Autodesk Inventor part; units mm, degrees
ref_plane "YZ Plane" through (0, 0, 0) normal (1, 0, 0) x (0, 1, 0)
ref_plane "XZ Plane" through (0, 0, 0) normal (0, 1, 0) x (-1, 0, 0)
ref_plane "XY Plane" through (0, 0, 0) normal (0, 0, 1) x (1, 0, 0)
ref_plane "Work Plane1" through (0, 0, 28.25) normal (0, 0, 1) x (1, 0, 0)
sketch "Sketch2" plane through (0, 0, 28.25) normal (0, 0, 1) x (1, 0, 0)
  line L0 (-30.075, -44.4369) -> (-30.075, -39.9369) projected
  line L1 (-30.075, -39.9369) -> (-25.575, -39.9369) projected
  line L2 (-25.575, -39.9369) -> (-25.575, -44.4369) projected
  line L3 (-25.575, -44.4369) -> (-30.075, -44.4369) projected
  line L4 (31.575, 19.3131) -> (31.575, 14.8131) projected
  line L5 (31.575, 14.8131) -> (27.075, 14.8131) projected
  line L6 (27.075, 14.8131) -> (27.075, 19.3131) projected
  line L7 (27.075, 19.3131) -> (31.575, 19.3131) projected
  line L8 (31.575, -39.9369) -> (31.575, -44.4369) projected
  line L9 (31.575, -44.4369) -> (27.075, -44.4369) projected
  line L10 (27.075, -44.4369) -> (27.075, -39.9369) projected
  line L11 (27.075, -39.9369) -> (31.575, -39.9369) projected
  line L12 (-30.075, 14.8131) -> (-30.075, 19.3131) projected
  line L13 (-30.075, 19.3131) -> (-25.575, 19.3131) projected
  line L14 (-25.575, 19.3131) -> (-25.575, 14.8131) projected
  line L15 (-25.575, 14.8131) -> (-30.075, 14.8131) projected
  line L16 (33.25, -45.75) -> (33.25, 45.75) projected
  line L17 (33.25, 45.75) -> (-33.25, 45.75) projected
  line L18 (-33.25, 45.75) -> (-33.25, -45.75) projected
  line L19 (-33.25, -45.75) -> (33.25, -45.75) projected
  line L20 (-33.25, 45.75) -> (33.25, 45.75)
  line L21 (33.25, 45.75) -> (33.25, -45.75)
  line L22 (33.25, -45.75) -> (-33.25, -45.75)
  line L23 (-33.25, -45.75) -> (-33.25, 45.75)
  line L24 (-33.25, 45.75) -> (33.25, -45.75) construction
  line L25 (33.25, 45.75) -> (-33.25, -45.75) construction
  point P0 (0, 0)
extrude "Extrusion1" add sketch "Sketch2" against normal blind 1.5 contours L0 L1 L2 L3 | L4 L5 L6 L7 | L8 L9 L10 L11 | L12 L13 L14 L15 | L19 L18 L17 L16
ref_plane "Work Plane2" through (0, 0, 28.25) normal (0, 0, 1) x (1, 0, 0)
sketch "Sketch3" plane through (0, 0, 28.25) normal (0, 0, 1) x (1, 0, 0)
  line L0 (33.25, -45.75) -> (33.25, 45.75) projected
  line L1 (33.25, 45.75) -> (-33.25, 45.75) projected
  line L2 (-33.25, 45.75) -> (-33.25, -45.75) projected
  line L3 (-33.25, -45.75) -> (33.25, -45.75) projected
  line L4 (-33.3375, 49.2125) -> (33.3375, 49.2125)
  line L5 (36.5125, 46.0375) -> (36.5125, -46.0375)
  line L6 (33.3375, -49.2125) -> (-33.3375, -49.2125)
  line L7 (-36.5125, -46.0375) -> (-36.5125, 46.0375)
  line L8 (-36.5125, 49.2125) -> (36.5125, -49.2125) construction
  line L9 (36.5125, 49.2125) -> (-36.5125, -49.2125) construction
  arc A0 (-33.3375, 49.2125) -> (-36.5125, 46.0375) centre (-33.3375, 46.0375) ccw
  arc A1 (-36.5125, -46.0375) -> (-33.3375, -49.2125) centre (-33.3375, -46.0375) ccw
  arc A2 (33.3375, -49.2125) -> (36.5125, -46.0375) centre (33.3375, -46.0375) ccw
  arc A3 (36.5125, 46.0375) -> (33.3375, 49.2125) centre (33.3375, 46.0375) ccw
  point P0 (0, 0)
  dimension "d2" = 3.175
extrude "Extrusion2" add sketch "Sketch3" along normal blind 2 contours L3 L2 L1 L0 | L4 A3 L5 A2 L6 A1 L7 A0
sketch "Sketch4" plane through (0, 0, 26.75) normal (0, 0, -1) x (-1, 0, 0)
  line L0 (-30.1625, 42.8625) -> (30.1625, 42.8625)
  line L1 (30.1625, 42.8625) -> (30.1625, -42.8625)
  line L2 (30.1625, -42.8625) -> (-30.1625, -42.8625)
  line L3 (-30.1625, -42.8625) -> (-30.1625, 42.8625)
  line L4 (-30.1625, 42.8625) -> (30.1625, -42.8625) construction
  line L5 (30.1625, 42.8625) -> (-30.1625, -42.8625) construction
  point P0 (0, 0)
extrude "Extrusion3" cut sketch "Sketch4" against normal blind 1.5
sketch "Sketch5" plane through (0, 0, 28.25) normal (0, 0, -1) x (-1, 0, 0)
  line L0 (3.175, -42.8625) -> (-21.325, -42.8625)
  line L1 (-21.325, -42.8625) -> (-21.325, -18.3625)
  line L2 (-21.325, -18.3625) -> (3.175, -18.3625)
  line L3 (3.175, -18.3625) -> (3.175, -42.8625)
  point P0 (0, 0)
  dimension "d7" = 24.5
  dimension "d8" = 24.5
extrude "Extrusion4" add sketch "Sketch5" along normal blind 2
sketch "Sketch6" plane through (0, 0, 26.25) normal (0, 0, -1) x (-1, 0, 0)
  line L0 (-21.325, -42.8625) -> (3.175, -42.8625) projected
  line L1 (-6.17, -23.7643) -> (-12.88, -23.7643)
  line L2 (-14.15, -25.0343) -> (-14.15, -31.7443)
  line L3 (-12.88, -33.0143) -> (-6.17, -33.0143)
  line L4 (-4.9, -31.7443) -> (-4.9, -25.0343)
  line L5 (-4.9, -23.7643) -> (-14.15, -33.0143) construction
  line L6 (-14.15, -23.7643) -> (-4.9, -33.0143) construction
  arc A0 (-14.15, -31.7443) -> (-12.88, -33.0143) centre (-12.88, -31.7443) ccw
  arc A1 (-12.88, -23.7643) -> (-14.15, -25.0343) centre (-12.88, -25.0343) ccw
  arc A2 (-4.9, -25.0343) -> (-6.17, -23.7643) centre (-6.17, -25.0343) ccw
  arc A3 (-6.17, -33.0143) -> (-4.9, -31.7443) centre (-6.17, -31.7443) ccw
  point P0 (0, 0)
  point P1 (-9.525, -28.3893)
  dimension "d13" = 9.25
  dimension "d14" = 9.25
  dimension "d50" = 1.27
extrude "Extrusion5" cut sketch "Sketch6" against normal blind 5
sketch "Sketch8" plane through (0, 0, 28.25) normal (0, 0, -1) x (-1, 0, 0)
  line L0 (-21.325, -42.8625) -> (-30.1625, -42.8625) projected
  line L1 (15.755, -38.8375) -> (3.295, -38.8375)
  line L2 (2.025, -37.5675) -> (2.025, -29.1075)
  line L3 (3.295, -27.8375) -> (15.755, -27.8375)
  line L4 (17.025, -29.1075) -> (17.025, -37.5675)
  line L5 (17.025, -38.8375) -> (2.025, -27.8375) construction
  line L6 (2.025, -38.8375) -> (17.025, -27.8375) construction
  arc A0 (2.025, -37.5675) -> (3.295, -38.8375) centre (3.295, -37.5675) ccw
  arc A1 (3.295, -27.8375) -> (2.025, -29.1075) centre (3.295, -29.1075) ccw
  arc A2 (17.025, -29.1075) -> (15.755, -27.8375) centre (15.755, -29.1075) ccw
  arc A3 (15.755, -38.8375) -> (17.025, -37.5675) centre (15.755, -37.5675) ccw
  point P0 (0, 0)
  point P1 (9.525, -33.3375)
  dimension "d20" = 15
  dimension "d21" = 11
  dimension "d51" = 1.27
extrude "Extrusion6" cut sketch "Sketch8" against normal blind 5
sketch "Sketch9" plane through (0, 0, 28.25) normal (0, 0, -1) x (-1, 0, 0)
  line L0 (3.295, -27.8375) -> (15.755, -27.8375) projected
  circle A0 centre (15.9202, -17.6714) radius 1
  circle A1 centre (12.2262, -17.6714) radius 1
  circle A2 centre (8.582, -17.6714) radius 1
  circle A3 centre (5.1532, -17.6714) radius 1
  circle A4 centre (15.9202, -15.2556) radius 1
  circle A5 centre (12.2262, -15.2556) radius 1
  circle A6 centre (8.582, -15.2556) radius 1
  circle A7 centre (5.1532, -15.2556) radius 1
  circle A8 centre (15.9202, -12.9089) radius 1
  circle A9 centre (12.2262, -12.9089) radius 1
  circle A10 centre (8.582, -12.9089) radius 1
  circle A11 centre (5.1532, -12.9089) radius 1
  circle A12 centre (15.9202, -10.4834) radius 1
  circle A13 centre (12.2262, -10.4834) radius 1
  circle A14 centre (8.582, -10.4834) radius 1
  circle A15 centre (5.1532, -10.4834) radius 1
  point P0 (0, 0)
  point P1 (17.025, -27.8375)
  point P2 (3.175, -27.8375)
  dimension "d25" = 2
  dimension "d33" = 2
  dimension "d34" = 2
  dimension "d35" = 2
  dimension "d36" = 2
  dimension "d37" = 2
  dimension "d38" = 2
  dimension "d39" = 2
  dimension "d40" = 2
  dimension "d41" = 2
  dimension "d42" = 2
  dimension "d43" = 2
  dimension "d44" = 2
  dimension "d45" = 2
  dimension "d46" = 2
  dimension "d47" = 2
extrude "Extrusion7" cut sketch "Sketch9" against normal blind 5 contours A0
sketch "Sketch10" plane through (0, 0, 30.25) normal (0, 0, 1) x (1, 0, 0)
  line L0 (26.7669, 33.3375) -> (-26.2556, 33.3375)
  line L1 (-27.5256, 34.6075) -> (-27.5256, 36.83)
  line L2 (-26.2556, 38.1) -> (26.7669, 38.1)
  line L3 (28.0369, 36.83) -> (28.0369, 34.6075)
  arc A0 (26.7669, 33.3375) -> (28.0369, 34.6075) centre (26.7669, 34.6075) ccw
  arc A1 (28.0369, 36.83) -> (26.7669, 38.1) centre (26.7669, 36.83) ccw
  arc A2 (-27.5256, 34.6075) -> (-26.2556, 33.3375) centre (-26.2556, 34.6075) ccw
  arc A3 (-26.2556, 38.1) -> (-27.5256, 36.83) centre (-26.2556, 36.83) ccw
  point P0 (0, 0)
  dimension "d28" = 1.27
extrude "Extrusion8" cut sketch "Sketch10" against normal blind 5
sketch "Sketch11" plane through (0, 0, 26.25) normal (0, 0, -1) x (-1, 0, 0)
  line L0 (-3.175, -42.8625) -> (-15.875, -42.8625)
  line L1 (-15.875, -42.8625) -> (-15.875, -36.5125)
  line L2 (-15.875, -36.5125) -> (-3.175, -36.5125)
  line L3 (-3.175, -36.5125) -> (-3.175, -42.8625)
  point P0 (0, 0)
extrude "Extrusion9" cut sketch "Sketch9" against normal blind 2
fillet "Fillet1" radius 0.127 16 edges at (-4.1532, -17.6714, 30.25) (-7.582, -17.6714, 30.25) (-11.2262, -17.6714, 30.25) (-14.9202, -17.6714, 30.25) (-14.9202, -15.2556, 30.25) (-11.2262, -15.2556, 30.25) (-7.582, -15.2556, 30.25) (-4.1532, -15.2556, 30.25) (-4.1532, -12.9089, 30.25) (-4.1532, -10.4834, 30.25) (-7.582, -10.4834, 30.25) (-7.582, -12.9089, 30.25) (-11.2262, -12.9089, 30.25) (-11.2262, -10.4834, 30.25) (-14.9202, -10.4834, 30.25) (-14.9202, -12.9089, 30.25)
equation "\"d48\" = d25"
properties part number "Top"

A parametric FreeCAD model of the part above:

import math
import FreeCAD as App
import Part
import Sketcher
from FreeCAD import Vector
Q = App.Units.Quantity


def edges_at(feature, points):
    """Names of the edges that pass closest to the given points."""
    edges = feature.Shape.Edges
    near = lambda p: min(range(len(edges)), key=lambda i: edges[i].distToShape(Part.Vertex(*p))[0])
    return sorted({f"Edge{near(p) + 1}" for p in points})

doc = App.newDocument("Part")
body = doc.addObject("PartDesign::Body", "Body")

sketch1 = doc.addObject("Sketcher::SketchObject", "Sketch")
body.addObject(sketch1)
sketch1.AttachmentSupport = (doc.XY_Plane, [""])
sketch1.MapMode = "FlatFace"
sketch1.AttachmentOffset = App.Placement(Vector(0, 0, 1.1122047 * 25.4), App.Rotation())
sketch1.addGeometry(Part.LineSegment(Vector(-33, -46, 0), Vector(33, -46, 0)), False)
sketch1.addGeometry(Part.LineSegment(Vector(33, -46, 0), Vector(33, 46, 0)), False)
sketch1.addGeometry(Part.LineSegment(Vector(33, 46, 0), Vector(-33, 46, 0)), False)
sketch1.addGeometry(Part.LineSegment(Vector(-33, 46, 0), Vector(-33, -46, 0)), False)
sketch1.addConstraint(Sketcher.Constraint("Coincident", 0, 2, 1, 1))
sketch1.addConstraint(Sketcher.Constraint("Coincident", 1, 2, 2, 1))
sketch1.addConstraint(Sketcher.Constraint("Coincident", 2, 2, 3, 1))
sketch1.addConstraint(Sketcher.Constraint("Coincident", 3, 2, 0, 1))
sketch1.addConstraint(Sketcher.Constraint("Horizontal", 0))
sketch1.addConstraint(Sketcher.Constraint("Vertical", 1))
sketch1.addConstraint(Sketcher.Constraint("Horizontal", 2))
sketch1.addConstraint(Sketcher.Constraint("Vertical", 3))
sketch1.addConstraint(Sketcher.Constraint("Symmetric", 0, 2, 2, 2, -1, 1))
sketch1.addConstraint(Sketcher.Constraint("DistanceX", 0, 1, 0, 2, Q("2.6181 in")))
sketch1.addConstraint(Sketcher.Constraint("DistanceY", 1, 1, 1, 2, 91.5))
pad1 = doc.addObject("PartDesign::Pad", "Pad")
body.addObject(pad1)
pad1.Profile = sketch1
pad1.Length = 1.5
pad1.Reversed = True

sketch2 = doc.addObject("Sketcher::SketchObject", "Sketch001")
body.addObject(sketch2)
sketch2.AttachmentSupport = (doc.XY_Plane, [""])
sketch2.MapMode = "FlatFace"
sketch2.AttachmentOffset = App.Placement(Vector(0, 0, 1.1122047 * 25.4), App.Rotation())
sketch2.addGeometry(Part.LineSegment(Vector(33.3, 49.2, 0), Vector(-33.3, 49.2, 0)), False)
sketch2.addGeometry(Part.ArcOfCircle(Part.Circle(Vector(-33.3, 46, 0), Vector(0, 0, 1), 3.2), math.radians(90), math.radians(180)), False)
sketch2.addGeometry(Part.LineSegment(Vector(-36.5, 46, 0), Vector(-36.5, -46, 0)), False)
sketch2.addGeometry(Part.ArcOfCircle(Part.Circle(Vector(-33.3, -46, 0), Vector(0, 0, 1), 3.2), math.radians(180), math.radians(270)), False)
sketch2.addGeometry(Part.LineSegment(Vector(-33.3, -49.2, 0), Vector(33.3, -49.2, 0)), False)
sketch2.addGeometry(Part.ArcOfCircle(Part.Circle(Vector(33.3, -46, 0), Vector(0, 0, 1), 3.2), math.radians(-90), math.radians(0)), False)
sketch2.addGeometry(Part.LineSegment(Vector(36.5, -46, 0), Vector(36.5, 46, 0)), False)
sketch2.addGeometry(Part.ArcOfCircle(Part.Circle(Vector(33.3, 46, 0), Vector(0, 0, 1), 3.2), math.radians(0), math.radians(90)), False)
sketch2.addConstraint(Sketcher.Constraint("Tangent", 0, 2, 1, 1))
sketch2.addConstraint(Sketcher.Constraint("Tangent", 1, 2, 2, 1))
sketch2.addConstraint(Sketcher.Constraint("Tangent", 2, 2, 3, 1))
sketch2.addConstraint(Sketcher.Constraint("Tangent", 3, 2, 4, 1))
sketch2.addConstraint(Sketcher.Constraint("Tangent", 4, 2, 5, 1))
sketch2.addConstraint(Sketcher.Constraint("Tangent", 5, 2, 6, 1))
sketch2.addConstraint(Sketcher.Constraint("Tangent", 6, 2, 7, 1))
sketch2.addConstraint(Sketcher.Constraint("Tangent", 7, 2, 0, 1))
sketch2.addConstraint(Sketcher.Constraint("Horizontal", 0))
sketch2.addConstraint(Sketcher.Constraint("Vertical", 2))
sketch2.addConstraint(Sketcher.Constraint("Horizontal", 4))
sketch2.addConstraint(Sketcher.Constraint("Vertical", 6))
sketch2.addConstraint(Sketcher.Constraint("Equal", 1, 3))
sketch2.addConstraint(Sketcher.Constraint("Equal", 3, 5))
sketch2.addConstraint(Sketcher.Constraint("Equal", 5, 7))
sketch2.addConstraint(Sketcher.Constraint("Symmetric", 1, 3, 5, 3, -1, 1))
sketch2.addConstraint(Sketcher.Constraint("Radius", 1, Q("0.125 in")))
sketch2.addConstraint(Sketcher.Constraint("DistanceX", 0, 2, 0, 1, Q("2.625 in")))
sketch2.addConstraint(Sketcher.Constraint("DistanceY", 2, 2, 2, 1, Q("3.625 in")))
pad2 = doc.addObject("PartDesign::Pad", "Pad001")
body.addObject(pad2)
pad2.Profile = sketch2
pad2.Length = 2

sketch3 = doc.addObject("Sketcher::SketchObject", "Sketch002")
body.addObject(sketch3)
sketch3.AttachmentSupport = (doc.XY_Plane, [""])
sketch3.MapMode = "FlatFace"
sketch3.AttachmentOffset = App.Placement(Vector(0, 0, 26.75), App.Rotation())
sketch3.addGeometry(Part.LineSegment(Vector(-30, 43, 0), Vector(30, 43, 0)), False)
sketch3.addGeometry(Part.LineSegment(Vector(30, 43, 0), Vector(30, -43, 0)), False)
sketch3.addGeometry(Part.LineSegment(Vector(30, -43, 0), Vector(-30, -43, 0)), False)
sketch3.addGeometry(Part.LineSegment(Vector(-30, -43, 0), Vector(-30, 43, 0)), False)
sketch3.addConstraint(Sketcher.Constraint("Coincident", 0, 2, 1, 1))
sketch3.addConstraint(Sketcher.Constraint("Coincident", 1, 2, 2, 1))
sketch3.addConstraint(Sketcher.Constraint("Coincident", 2, 2, 3, 1))
sketch3.addConstraint(Sketcher.Constraint("Coincident", 3, 2, 0, 1))
sketch3.addConstraint(Sketcher.Constraint("Horizontal", 0))
sketch3.addConstraint(Sketcher.Constraint("Vertical", 1))
sketch3.addConstraint(Sketcher.Constraint("Horizontal", 2))
sketch3.addConstraint(Sketcher.Constraint("Vertical", 3))
sketch3.addConstraint(Sketcher.Constraint("Symmetric", 0, 2, 2, 2, -1, 1))
sketch3.addConstraint(Sketcher.Constraint("DistanceX", 0, 1, 0, 2, Q("2.375 in")))
sketch3.addConstraint(Sketcher.Constraint("DistanceY", 1, 2, 1, 1, Q("3.375 in")))
pocket1 = doc.addObject("PartDesign::Pocket", "Pocket")
body.addObject(pocket1)
pocket1.Profile = sketch3
pocket1.Length = 1.5
pocket1.Reversed = True

sketch4 = doc.addObject("Sketcher::SketchObject", "Sketch003")
body.addObject(sketch4)
sketch4.AttachmentSupport = (doc.XY_Plane, [""])
sketch4.MapMode = "FlatFace"
sketch4.AttachmentOffset = App.Placement(Vector(0, 0, 1.1122047 * 25.4), App.Rotation())
sketch4.addGeometry(Part.LineSegment(Vector(21, -43, 0), Vector(-3, -43, 0)), False)
sketch4.addGeometry(Part.LineSegment(Vector(-3, -43, 0), Vector(-3, -18, 0)), False)
sketch4.addGeometry(Part.LineSegment(Vector(-3, -18, 0), Vector(21, -18, 0)), False)
sketch4.addGeometry(Part.LineSegment(Vector(21, -18, 0), Vector(21, -43, 0)), False)
sketch4.addConstraint(Sketcher.Constraint("Coincident", 0, 2, 1, 1))
sketch4.addConstraint(Sketcher.Constraint("Coincident", 1, 2, 2, 1))
sketch4.addConstraint(Sketcher.Constraint("Coincident", 2, 2, 3, 1))
sketch4.addConstraint(Sketcher.Constraint("Coincident", 3, 2, 0, 1))
sketch4.addConstraint(Sketcher.Constraint("Horizontal", 0))
sketch4.addConstraint(Sketcher.Constraint("Vertical", 1))
sketch4.addConstraint(Sketcher.Constraint("Horizontal", 2))
sketch4.addConstraint(Sketcher.Constraint("Vertical", 3))
sketch4.addConstraint(Sketcher.Constraint("Equal", 2, 1))
sketch4.addConstraint(Sketcher.Constraint("DistanceX", 0, 2, 0, 1, 24.5))
sketch4.addConstraint(Sketcher.Constraint("DistanceX", 0, 2, -1, 1, Q("0.125 in")))
sketch4.addConstraint(Sketcher.Constraint("DistanceY", 0, 2, -1, 1, Q("1.6875 in")))
pad3 = doc.addObject("PartDesign::Pad", "Pad002")
body.addObject(pad3)
pad3.Profile = sketch4
pad3.Length = 2
pad3.Reversed = True

sketch5 = doc.addObject("Sketcher::SketchObject", "Sketch004")
body.addObject(sketch5)
sketch5.AttachmentSupport = (doc.XY_Plane, [""])
sketch5.MapMode = "FlatFace"
sketch5.AttachmentOffset = App.Placement(Vector(0, 0, 26.25), App.Rotation())
sketch5.addGeometry(Part.ArcOfCircle(Part.Circle(Vector(6.2, -25, 0), Vector(0, 0, 1), 1.3), math.radians(90), math.radians(180)), False)
sketch5.addGeometry(Part.LineSegment(Vector(6.2, -23.8, 0), Vector(12.9, -23.8, 0)), False)
sketch5.addGeometry(Part.ArcOfCircle(Part.Circle(Vector(12.9, -25, 0), Vector(0, 0, 1), 1.3), math.radians(0), math.radians(90)), False)
sketch5.addGeometry(Part.LineSegment(Vector(14.2, -25, 0), Vector(14.2, -31.7, 0)), False)
sketch5.addGeometry(Part.ArcOfCircle(Part.Circle(Vector(12.9, -31.7, 0), Vector(0, 0, 1), 1.3), math.radians(-90), math.radians(0)), False)
sketch5.addGeometry(Part.LineSegment(Vector(12.9, -33, 0), Vector(6.2, -33, 0)), False)
sketch5.addGeometry(Part.ArcOfCircle(Part.Circle(Vector(6.2, -31.7, 0), Vector(0, 0, 1), 1.3), math.radians(180), math.radians(270)), False)
sketch5.addGeometry(Part.LineSegment(Vector(4.9, -31.7, 0), Vector(4.9, -25, 0)), False)
sketch5.addConstraint(Sketcher.Constraint("Tangent", 0, 1, 1, 1))
sketch5.addConstraint(Sketcher.Constraint("Tangent", 1, 2, 2, 2))
sketch5.addConstraint(Sketcher.Constraint("Tangent", 2, 1, 3, 1))
sketch5.addConstraint(Sketcher.Constraint("Tangent", 3, 2, 4, 2))
sketch5.addConstraint(Sketcher.Constraint("Tangent", 4, 1, 5, 1))
sketch5.addConstraint(Sketcher.Constraint("Tangent", 5, 2, 6, 2))
sketch5.addConstraint(Sketcher.Constraint("Tangent", 6, 1, 7, 1))
sketch5.addConstraint(Sketcher.Constraint("Tangent", 7, 2, 0, 2))
sketch5.addConstraint(Sketcher.Constraint("Horizontal", 1))
sketch5.addConstraint(Sketcher.Constraint("Vertical", 3))
sketch5.addConstraint(Sketcher.Constraint("Horizontal", 5))
sketch5.addConstraint(Sketcher.Constraint("Vertical", 7))
sketch5.addConstraint(Sketcher.Constraint("Equal", 0, 2))
sketch5.addConstraint(Sketcher.Constraint("Equal", 2, 4))
sketch5.addConstraint(Sketcher.Constraint("Equal", 4, 6))
sketch5.addConstraint(Sketcher.Constraint("Equal", 5, 3))
sketch5.addConstraint(Sketcher.Constraint("Radius", 0, Q("0.05 in")))
sketch5.addConstraint(Sketcher.Constraint("DistanceX", 1, 1, 1, 2, 6.71))
sketch5.addConstraint(Sketcher.Constraint("DistanceY", 0, 3, -1, 1, Q("0.9856 in")))
sketch5.addConstraint(Sketcher.Constraint("DistanceX", -1, 1, 0, 3, 6.17))
pocket2 = doc.addObject("PartDesign::Pocket", "Pocket001")
body.addObject(pocket2)
pocket2.Profile = sketch5
pocket2.Length = 5
pocket2.Reversed = True

sketch6 = doc.addObject("Sketcher::SketchObject", "Sketch005")
body.addObject(sketch6)
sketch6.AttachmentSupport = (doc.XY_Plane, [""])
sketch6.MapMode = "FlatFace"
sketch6.AttachmentOffset = App.Placement(Vector(0, 0, 1.1122047 * 25.4), App.Rotation())
sketch6.addGeometry(Part.LineSegment(Vector(-3.3, -38.8, 0), Vector(-15.8, -38.8, 0)), False)
sketch6.addGeometry(Part.ArcOfCircle(Part.Circle(Vector(-15.8, -37.6, 0), Vector(0, 0, 1), 1.3), math.radians(180), math.radians(270)), False)
sketch6.addGeometry(Part.LineSegment(Vector(-17, -37.6, 0), Vector(-17, -29.1, 0)), False)
sketch6.addGeometry(Part.ArcOfCircle(Part.Circle(Vector(-15.8, -29.1, 0), Vector(0, 0, 1), 1.3), math.radians(90), math.radians(180)), False)
sketch6.addGeometry(Part.LineSegment(Vector(-15.8, -27.8, 0), Vector(-3.3, -27.8, 0)), False)
sketch6.addGeometry(Part.ArcOfCircle(Part.Circle(Vector(-3.3, -29.1, 0), Vector(0, 0, 1), 1.3), math.radians(0), math.radians(90)), False)
sketch6.addGeometry(Part.LineSegment(Vector(-2, -29.1, 0), Vector(-2, -37.6, 0)), False)
sketch6.addGeometry(Part.ArcOfCircle(Part.Circle(Vector(-3.3, -37.6, 0), Vector(0, 0, 1), 1.3), math.radians(-90), math.radians(0)), False)
sketch6.addConstraint(Sketcher.Constraint("Tangent", 0, 2, 1, 2))
sketch6.addConstraint(Sketcher.Constraint("Tangent", 1, 1, 2, 1))
sketch6.addConstraint(Sketcher.Constraint("Tangent", 2, 2, 3, 2))
sketch6.addConstraint(Sketcher.Constraint("Tangent", 3, 1, 4, 1))
sketch6.addConstraint(Sketcher.Constraint("Tangent", 4, 2, 5, 2))
sketch6.addConstraint(Sketcher.Constraint("Tangent", 5, 1, 6, 1))
sketch6.addConstraint(Sketcher.Constraint("Tangent", 6, 2, 7, 2))
sketch6.addConstraint(Sketcher.Constraint("Tangent", 7, 1, 0, 1))
sketch6.addConstraint(Sketcher.Constraint("Horizontal", 0))
sketch6.addConstraint(Sketcher.Constraint("Vertical", 2))
sketch6.addConstraint(Sketcher.Constraint("Horizontal", 4))
sketch6.addConstraint(Sketcher.Constraint("Vertical", 6))
sketch6.addConstraint(Sketcher.Constraint("Equal", 1, 3))
sketch6.addConstraint(Sketcher.Constraint("Equal", 3, 5))
sketch6.addConstraint(Sketcher.Constraint("Equal", 5, 7))
sketch6.addConstraint(Sketcher.Constraint("Radius", 1, Q("0.05 in")))
sketch6.addConstraint(Sketcher.Constraint("DistanceY", 0, 2, 3, 1, 11.0))
sketch6.addConstraint(Sketcher.Constraint("DistanceX", 0, 2, 0, 1, 12.46))
sketch6.addConstraint(Sketcher.Constraint("DistanceX", 1, 3, -1, 1, 15.755))
sketch6.addConstraint(Sketcher.Constraint("DistanceY", 1, 3, -1, 1, 37.5675))
pocket3 = doc.addObject("PartDesign::Pocket", "Pocket002")
body.addObject(pocket3)
pocket3.Profile = sketch6
pocket3.Length = 5
pocket3.Reversed = True

sketch7 = doc.addObject("Sketcher::SketchObject", "Sketch006")
body.addObject(sketch7)
sketch7.AttachmentSupport = (doc.XY_Plane, [""])
sketch7.MapMode = "FlatFace"
sketch7.AttachmentOffset = App.Placement(Vector(0, 0, 1.1122047 * 25.4), App.Rotation())
sketch7.addGeometry(Part.Circle(Vector(-15.9, -17.7, 0), Vector(0, 0, 1), 1), False)
sketch7.addConstraint(Sketcher.Constraint("Diameter", 0, 2.0))
sketch7.addConstraint(Sketcher.Constraint("DistanceX", 0, 3, -1, 1, 15.9202))
sketch7.addConstraint(Sketcher.Constraint("DistanceY", 0, 3, -1, 1, 17.6714))
pocket4 = doc.addObject("PartDesign::Pocket", "Pocket003")
body.addObject(pocket4)
pocket4.Profile = sketch7
pocket4.Length = 5
pocket4.Reversed = True

sketch8 = doc.addObject("Sketcher::SketchObject", "Sketch007")
body.addObject(sketch8)
sketch8.AttachmentSupport = (doc.XY_Plane, [""])
sketch8.MapMode = "FlatFace"
sketch8.AttachmentOffset = App.Placement(Vector(0, 0, 30.25), App.Rotation())
sketch8.addGeometry(Part.LineSegment(Vector(-26.3, 33.3, 0), Vector(26.8, 33.3, 0)), False)
sketch8.addGeometry(Part.ArcOfCircle(Part.Circle(Vector(26.8, 34.6, 0), Vector(0, 0, 1), 1.3), math.radians(-90), math.radians(0)), False)
sketch8.addGeometry(Part.LineSegment(Vector(28, 34.6, 0), Vector(28, 36.8, 0)), False)
sketch8.addGeometry(Part.ArcOfCircle(Part.Circle(Vector(26.8, 36.8, 0), Vector(0, 0, 1), 1.3), math.radians(0), math.radians(90)), False)
sketch8.addGeometry(Part.LineSegment(Vector(26.8, 38.1, 0), Vector(-26.3, 38.1, 0)), False)
sketch8.addGeometry(Part.ArcOfCircle(Part.Circle(Vector(-26.3, 36.8, 0), Vector(0, 0, 1), 1.3), math.radians(90), math.radians(180)), False)
sketch8.addGeometry(Part.LineSegment(Vector(-27.5, 36.8, 0), Vector(-27.5, 34.6, 0)), False)
sketch8.addGeometry(Part.ArcOfCircle(Part.Circle(Vector(-26.3, 34.6, 0), Vector(0, 0, 1), 1.3), math.radians(180), math.radians(270)), False)
sketch8.addConstraint(Sketcher.Constraint("Tangent", 0, 2, 1, 1))
sketch8.addConstraint(Sketcher.Constraint("Tangent", 1, 2, 2, 1))
sketch8.addConstraint(Sketcher.Constraint("Tangent", 2, 2, 3, 1))
sketch8.addConstraint(Sketcher.Constraint("Tangent", 3, 2, 4, 1))
sketch8.addConstraint(Sketcher.Constraint("Tangent", 4, 2, 5, 1))
sketch8.addConstraint(Sketcher.Constraint("Tangent", 5, 2, 6, 1))
sketch8.addConstraint(Sketcher.Constraint("Tangent", 6, 2, 7, 1))
sketch8.addConstraint(Sketcher.Constraint("Tangent", 7, 2, 0, 1))
sketch8.addConstraint(Sketcher.Constraint("Horizontal", 0))
sketch8.addConstraint(Sketcher.Constraint("Vertical", 2))
sketch8.addConstraint(Sketcher.Constraint("Horizontal", 4))
sketch8.addConstraint(Sketcher.Constraint("Vertical", 6))
sketch8.addConstraint(Sketcher.Constraint("Equal", 1, 3))
sketch8.addConstraint(Sketcher.Constraint("Equal", 3, 5))
sketch8.addConstraint(Sketcher.Constraint("Equal", 5, 7))
sketch8.addConstraint(Sketcher.Constraint("Radius", 1, Q("0.05 in")))
sketch8.addConstraint(Sketcher.Constraint("DistanceY", -1, 1, 3, 2, Q("1.5 in")))
sketch8.addConstraint(Sketcher.Constraint("DistanceX", 0, 1, 0, 2, Q("2.0875 in")))
sketch8.addConstraint(Sketcher.Constraint("DistanceY", 2, 1, 2, 2, Q("0.0875 in")))
sketch8.addConstraint(Sketcher.Constraint("DistanceX", -1, 1, 1, 3, 26.767))
pocket5 = doc.addObject("PartDesign::Pocket", "Pocket004")
body.addObject(pocket5)
pocket5.Profile = sketch8
pocket5.Length = 5

sketch9 = doc.addObject("Sketcher::SketchObject", "Sketch008")
body.addObject(sketch9)
sketch9.AttachmentSupport = (doc.XY_Plane, [""])
sketch9.MapMode = "FlatFace"
sketch9.AttachmentOffset = App.Placement(Vector(0, 0, 1.1122047 * 25.4), App.Rotation())
sketch9.addGeometry(Part.Circle(Vector(-15.9, -17.7, 0), Vector(0, 0, 1), 1), False)
sketch9.addGeometry(Part.Circle(Vector(-12.2, -17.7, 0), Vector(0, 0, 1), 1), False)
sketch9.addGeometry(Part.Circle(Vector(-8.6, -17.7, 0), Vector(0, 0, 1), 1), False)
sketch9.addGeometry(Part.Circle(Vector(-5.2, -17.7, 0), Vector(0, 0, 1), 1), False)
sketch9.addGeometry(Part.Circle(Vector(-15.9, -15.3, 0), Vector(0, 0, 1), 1), False)
sketch9.addGeometry(Part.Circle(Vector(-12.2, -15.3, 0), Vector(0, 0, 1), 1), False)
sketch9.addGeometry(Part.Circle(Vector(-8.6, -15.3, 0), Vector(0, 0, 1), 1), False)
sketch9.addGeometry(Part.Circle(Vector(-5.2, -15.3, 0), Vector(0, 0, 1), 1), False)
sketch9.addGeometry(Part.Circle(Vector(-15.9, -12.9, 0), Vector(0, 0, 1), 1), False)
sketch9.addGeometry(Part.Circle(Vector(-12.2, -12.9, 0), Vector(0, 0, 1), 1), False)
sketch9.addGeometry(Part.Circle(Vector(-8.6, -12.9, 0), Vector(0, 0, 1), 1), False)
sketch9.addGeometry(Part.Circle(Vector(-5.2, -12.9, 0), Vector(0, 0, 1), 1), False)
sketch9.addGeometry(Part.Circle(Vector(-15.9, -10.5, 0), Vector(0, 0, 1), 1), False)
sketch9.addGeometry(Part.Circle(Vector(-12.2, -10.5, 0), Vector(0, 0, 1), 1), False)
sketch9.addGeometry(Part.Circle(Vector(-8.6, -10.5, 0), Vector(0, 0, 1), 1), False)
sketch9.addGeometry(Part.Circle(Vector(-5.2, -10.5, 0), Vector(0, 0, 1), 1), False)
sketch9.addConstraint(Sketcher.Constraint("Equal", 0, 1))
sketch9.addConstraint(Sketcher.Constraint("Equal", 1, 2))
sketch9.addConstraint(Sketcher.Constraint("Equal", 2, 3))
sketch9.addConstraint(Sketcher.Constraint("Equal", 3, 4))
sketch9.addConstraint(Sketcher.Constraint("Equal", 4, 5))
sketch9.addConstraint(Sketcher.Constraint("Equal", 5, 6))
sketch9.addConstraint(Sketcher.Constraint("Equal", 6, 7))
sketch9.addConstraint(Sketcher.Constraint("Equal", 7, 8))
sketch9.addConstraint(Sketcher.Constraint("Equal", 8, 9))
sketch9.addConstraint(Sketcher.Constraint("Equal", 9, 10))
sketch9.addConstraint(Sketcher.Constraint("Equal", 10, 11))
sketch9.addConstraint(Sketcher.Constraint("Equal", 11, 12))
sketch9.addConstraint(Sketcher.Constraint("Equal", 12, 13))
sketch9.addConstraint(Sketcher.Constraint("Equal", 13, 14))
sketch9.addConstraint(Sketcher.Constraint("Equal", 14, 15))
sketch9.addConstraint(Sketcher.Constraint("Horizontal", 0, 3, 1, 3))
sketch9.addConstraint(Sketcher.Constraint("Horizontal", 1, 3, 2, 3))
sketch9.addConstraint(Sketcher.Constraint("Horizontal", 2, 3, 3, 3))
sketch9.addConstraint(Sketcher.Constraint("Horizontal", 4, 3, 5, 3))
sketch9.addConstraint(Sketcher.Constraint("Horizontal", 5, 3, 6, 3))
sketch9.addConstraint(Sketcher.Constraint("Horizontal", 6, 3, 7, 3))
sketch9.addConstraint(Sketcher.Constraint("Horizontal", 8, 3, 9, 3))
sketch9.addConstraint(Sketcher.Constraint("Horizontal", 9, 3, 10, 3))
sketch9.addConstraint(Sketcher.Constraint("Horizontal", 10, 3, 11, 3))
sketch9.addConstraint(Sketcher.Constraint("Horizontal", 12, 3, 13, 3))
sketch9.addConstraint(Sketcher.Constraint("Horizontal", 13, 3, 14, 3))
sketch9.addConstraint(Sketcher.Constraint("Horizontal", 14, 3, 15, 3))
sketch9.addConstraint(Sketcher.Constraint("Vertical", 0, 3, 4, 3))
sketch9.addConstraint(Sketcher.Constraint("Vertical", 1, 3, 5, 3))
sketch9.addConstraint(Sketcher.Constraint("Vertical", 2, 3, 6, 3))
sketch9.addConstraint(Sketcher.Constraint("Vertical", 3, 3, 7, 3))
sketch9.addConstraint(Sketcher.Constraint("Vertical", 4, 3, 8, 3))
sketch9.addConstraint(Sketcher.Constraint("Vertical", 5, 3, 9, 3))
sketch9.addConstraint(Sketcher.Constraint("Vertical", 6, 3, 10, 3))
sketch9.addConstraint(Sketcher.Constraint("Vertical", 7, 3, 11, 3))
sketch9.addConstraint(Sketcher.Constraint("Vertical", 8, 3, 12, 3))
sketch9.addConstraint(Sketcher.Constraint("Vertical", 9, 3, 13, 3))
sketch9.addConstraint(Sketcher.Constraint("Vertical", 10, 3, 14, 3))
sketch9.addConstraint(Sketcher.Constraint("Vertical", 11, 3, 15, 3))
sketch9.addConstraint(Sketcher.Constraint("Diameter", 0, 2.0))
sketch9.addConstraint(Sketcher.Constraint("DistanceX", 2, 3, 3, 3, Q("0.135 in")))
sketch9.addConstraint(Sketcher.Constraint("DistanceY", 0, 3, 8, 3, Q("0.1875 in")))
sketch9.addConstraint(Sketcher.Constraint("DistanceY", 0, 3, 12, 3, Q("0.283 in")))
sketch9.addConstraint(Sketcher.Constraint("DistanceX", 0, 3, 2, 3, Q("0.2889 in")))
sketch9.addConstraint(Sketcher.Constraint("DistanceY", 0, 3, 4, 3, Q("0.0951 in")))
sketch9.addConstraint(Sketcher.Constraint("DistanceX", 0, 3, -1, 1, 15.9202))
sketch9.addConstraint(Sketcher.Constraint("DistanceY", 0, 3, -1, 1, 17.6714))
sketch9.addConstraint(Sketcher.Constraint("DistanceX", 1, 3, -1, 1, 12.2262))
pocket6 = doc.addObject("PartDesign::Pocket", "Pocket005")
body.addObject(pocket6)
pocket6.Profile = sketch9
pocket6.Length = 2
pocket6.Reversed = True
doc.recompute()

fillet = doc.addObject("PartDesign::Fillet", "Fillet")
body.addObject(fillet)
fillet.Base = (pocket6, edges_at(pocket6, [
    (-4.153, -17.671, 30.25),
    (-7.582, -17.671, 30.25),
    (-11.226, -17.671, 30.25),
    (-14.92, -17.671, 30.25),
    (-14.92, -15.256, 30.25),
    (-11.226, -15.256, 30.25),
    (-7.582, -15.256, 30.25),
    (-4.153, -15.256, 30.25),
    (-4.153, -12.909, 30.25),
    (-4.153, -10.483, 30.25),
    (-7.582, -10.483, 30.25),
    (-7.582, -12.909, 30.25),
    (-11.226, -12.909, 30.25),
    (-11.226, -10.483, 30.25),
    (-14.92, -10.483, 30.25),
    (-14.92, -12.909, 30.25),
]))
fillet.Radius = Q("0.005 in")

doc.recompute()
